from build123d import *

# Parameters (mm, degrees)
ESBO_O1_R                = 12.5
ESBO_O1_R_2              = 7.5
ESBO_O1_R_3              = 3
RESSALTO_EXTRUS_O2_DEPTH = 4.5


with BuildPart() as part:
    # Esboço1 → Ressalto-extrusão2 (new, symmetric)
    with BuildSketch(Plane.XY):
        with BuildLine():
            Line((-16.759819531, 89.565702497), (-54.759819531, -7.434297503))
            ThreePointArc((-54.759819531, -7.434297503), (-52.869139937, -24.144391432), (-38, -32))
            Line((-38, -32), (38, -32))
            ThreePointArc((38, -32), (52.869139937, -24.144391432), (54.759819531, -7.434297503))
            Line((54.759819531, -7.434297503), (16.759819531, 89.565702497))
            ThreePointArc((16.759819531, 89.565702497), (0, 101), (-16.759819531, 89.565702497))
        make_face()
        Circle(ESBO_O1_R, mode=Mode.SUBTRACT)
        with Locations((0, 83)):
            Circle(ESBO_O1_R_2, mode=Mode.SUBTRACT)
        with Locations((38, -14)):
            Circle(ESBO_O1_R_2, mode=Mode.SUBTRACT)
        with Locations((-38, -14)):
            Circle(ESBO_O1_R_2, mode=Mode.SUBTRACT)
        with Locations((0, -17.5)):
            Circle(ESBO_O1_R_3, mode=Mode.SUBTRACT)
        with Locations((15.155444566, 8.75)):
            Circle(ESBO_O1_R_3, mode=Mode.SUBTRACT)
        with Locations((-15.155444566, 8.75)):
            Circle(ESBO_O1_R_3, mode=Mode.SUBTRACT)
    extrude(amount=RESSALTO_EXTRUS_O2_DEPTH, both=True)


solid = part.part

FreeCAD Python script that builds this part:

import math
import FreeCAD as App
import Part
import Sketcher

V = App.Vector
Q = App.Units.Quantity

doc = App.newDocument("Part")
body = doc.addObject("PartDesign::Body", "Body")

# Sketch on XY plane
sketch1 = doc.addObject("Sketcher::SketchObject", "Sketch")
body.addObject(sketch1)
sketch1.AttachmentSupport = (doc.XY_Plane, [""])
sketch1.MapMode = "FlatFace"
sketch1.addGeometry([
    Part.LineSegment(V(-16.8, 89.6, 0), V(-54.8, -7.4, 0)),  # 0
    Part.ArcOfCircle(Part.Circle(V(-38, -14, 0), V(0, 0, 1), 18), math.radians(159), math.radians(270)),  # 1
    Part.LineSegment(V(-38, -32, 0), V(38, -32, 0)),  # 2
    Part.ArcOfCircle(Part.Circle(V(38, -14, 0), V(0, 0, 1), 18), math.radians(-90), math.radians(21)),  # 3
    Part.LineSegment(V(54.8, -7.4, 0), V(16.8, 89.6, 0)),  # 4
    Part.ArcOfCircle(Part.Circle(V(0, 83, 0), V(0, 0, 1), 18), math.radians(21), math.radians(159)),  # 5
    Part.Circle(V(-38, -14, 0), V(0, 0, 1), 7.5),  # 6
    Part.Circle(V(-15.2, 8.8, 0), V(0, 0, 1), 3),  # 7
    Part.Circle(V(0, -17.5, 0), V(0, 0, 1), 3),  # 8
    Part.Circle(V(0, 0, 0), V(0, 0, 1), 12.5),  # 9
    Part.Circle(V(38, -14, 0), V(0, 0, 1), 7.5),  # 10
    Part.Circle(V(15.2, 8.8, 0), V(0, 0, 1), 3),  # 11
    Part.Circle(V(0, 83, 0), V(0, 0, 1), 7.5),  # 12
], False)
sketch1.addConstraint([
    Sketcher.Constraint("Tangent", 0, 2, 1, 1),
    Sketcher.Constraint("Tangent", 1, 2, 2, 1),
    Sketcher.Constraint("Tangent", 2, 2, 3, 1),
    Sketcher.Constraint("Tangent", 3, 2, 4, 1),
    Sketcher.Constraint("Tangent", 4, 2, 5, 1),
    Sketcher.Constraint("Tangent", 5, 2, 0, 1),
    Sketcher.Constraint("Horizontal", 2),
    Sketcher.Constraint("Coincident", 9, 3, -1, 1),
    Sketcher.Constraint("Coincident", 6, 3, 1, 3),
    Sketcher.Constraint("Coincident", 10, 3, 3, 3),
    Sketcher.Constraint("Coincident", 12, 3, 5, 3),
    Sketcher.Constraint("Equal", 1, 3),
    Sketcher.Constraint("Equal", 3, 5),
    Sketcher.Constraint("Equal", 7, 8),
    Sketcher.Constraint("Equal", 6, 10),
    Sketcher.Constraint("Equal", 8, 11),
    Sketcher.Constraint("Equal", 10, 12),
    Sketcher.Constraint("Symmetric", 7, 3, 11, 3, -2),
    Sketcher.Constraint("Symmetric", 0, 2, 3, 2, -2),
    Sketcher.Constraint("PointOnObject", 8, 3, -2),
    Sketcher.Constraint("Diameter", 6, Q("15 mm")),
    Sketcher.Constraint("Diameter", 7, Q("6 mm")),
    Sketcher.Constraint("Diameter", 9, Q("25 mm")),
    Sketcher.Constraint("Radius", 1, Q("18 mm")),
    Sketcher.Constraint("DistanceX", 2, 1, 2, 2, Q("76 mm")),
    Sketcher.Constraint("DistanceY", 1, 3, -1, 1, Q("14 mm")),
    Sketcher.Constraint("DistanceY", -1, 1, 5, 3, Q("83 mm")),
    Sketcher.Constraint("DistanceY", 8, 3, -1, 1, Q("17.5 mm")),
    Sketcher.Constraint("DistanceY", -1, 1, 7, 3, Q("8.75 mm")),
    Sketcher.Constraint("DistanceX", 7, 3, 11, 3, Q("30.310889 mm")),
])
pad1 = doc.addObject("PartDesign::Pad", "Pad")
body.addObject(pad1)
pad1.Profile = sketch1
pad1.Length = 9
pad1.Midplane = True

doc.recompute()
